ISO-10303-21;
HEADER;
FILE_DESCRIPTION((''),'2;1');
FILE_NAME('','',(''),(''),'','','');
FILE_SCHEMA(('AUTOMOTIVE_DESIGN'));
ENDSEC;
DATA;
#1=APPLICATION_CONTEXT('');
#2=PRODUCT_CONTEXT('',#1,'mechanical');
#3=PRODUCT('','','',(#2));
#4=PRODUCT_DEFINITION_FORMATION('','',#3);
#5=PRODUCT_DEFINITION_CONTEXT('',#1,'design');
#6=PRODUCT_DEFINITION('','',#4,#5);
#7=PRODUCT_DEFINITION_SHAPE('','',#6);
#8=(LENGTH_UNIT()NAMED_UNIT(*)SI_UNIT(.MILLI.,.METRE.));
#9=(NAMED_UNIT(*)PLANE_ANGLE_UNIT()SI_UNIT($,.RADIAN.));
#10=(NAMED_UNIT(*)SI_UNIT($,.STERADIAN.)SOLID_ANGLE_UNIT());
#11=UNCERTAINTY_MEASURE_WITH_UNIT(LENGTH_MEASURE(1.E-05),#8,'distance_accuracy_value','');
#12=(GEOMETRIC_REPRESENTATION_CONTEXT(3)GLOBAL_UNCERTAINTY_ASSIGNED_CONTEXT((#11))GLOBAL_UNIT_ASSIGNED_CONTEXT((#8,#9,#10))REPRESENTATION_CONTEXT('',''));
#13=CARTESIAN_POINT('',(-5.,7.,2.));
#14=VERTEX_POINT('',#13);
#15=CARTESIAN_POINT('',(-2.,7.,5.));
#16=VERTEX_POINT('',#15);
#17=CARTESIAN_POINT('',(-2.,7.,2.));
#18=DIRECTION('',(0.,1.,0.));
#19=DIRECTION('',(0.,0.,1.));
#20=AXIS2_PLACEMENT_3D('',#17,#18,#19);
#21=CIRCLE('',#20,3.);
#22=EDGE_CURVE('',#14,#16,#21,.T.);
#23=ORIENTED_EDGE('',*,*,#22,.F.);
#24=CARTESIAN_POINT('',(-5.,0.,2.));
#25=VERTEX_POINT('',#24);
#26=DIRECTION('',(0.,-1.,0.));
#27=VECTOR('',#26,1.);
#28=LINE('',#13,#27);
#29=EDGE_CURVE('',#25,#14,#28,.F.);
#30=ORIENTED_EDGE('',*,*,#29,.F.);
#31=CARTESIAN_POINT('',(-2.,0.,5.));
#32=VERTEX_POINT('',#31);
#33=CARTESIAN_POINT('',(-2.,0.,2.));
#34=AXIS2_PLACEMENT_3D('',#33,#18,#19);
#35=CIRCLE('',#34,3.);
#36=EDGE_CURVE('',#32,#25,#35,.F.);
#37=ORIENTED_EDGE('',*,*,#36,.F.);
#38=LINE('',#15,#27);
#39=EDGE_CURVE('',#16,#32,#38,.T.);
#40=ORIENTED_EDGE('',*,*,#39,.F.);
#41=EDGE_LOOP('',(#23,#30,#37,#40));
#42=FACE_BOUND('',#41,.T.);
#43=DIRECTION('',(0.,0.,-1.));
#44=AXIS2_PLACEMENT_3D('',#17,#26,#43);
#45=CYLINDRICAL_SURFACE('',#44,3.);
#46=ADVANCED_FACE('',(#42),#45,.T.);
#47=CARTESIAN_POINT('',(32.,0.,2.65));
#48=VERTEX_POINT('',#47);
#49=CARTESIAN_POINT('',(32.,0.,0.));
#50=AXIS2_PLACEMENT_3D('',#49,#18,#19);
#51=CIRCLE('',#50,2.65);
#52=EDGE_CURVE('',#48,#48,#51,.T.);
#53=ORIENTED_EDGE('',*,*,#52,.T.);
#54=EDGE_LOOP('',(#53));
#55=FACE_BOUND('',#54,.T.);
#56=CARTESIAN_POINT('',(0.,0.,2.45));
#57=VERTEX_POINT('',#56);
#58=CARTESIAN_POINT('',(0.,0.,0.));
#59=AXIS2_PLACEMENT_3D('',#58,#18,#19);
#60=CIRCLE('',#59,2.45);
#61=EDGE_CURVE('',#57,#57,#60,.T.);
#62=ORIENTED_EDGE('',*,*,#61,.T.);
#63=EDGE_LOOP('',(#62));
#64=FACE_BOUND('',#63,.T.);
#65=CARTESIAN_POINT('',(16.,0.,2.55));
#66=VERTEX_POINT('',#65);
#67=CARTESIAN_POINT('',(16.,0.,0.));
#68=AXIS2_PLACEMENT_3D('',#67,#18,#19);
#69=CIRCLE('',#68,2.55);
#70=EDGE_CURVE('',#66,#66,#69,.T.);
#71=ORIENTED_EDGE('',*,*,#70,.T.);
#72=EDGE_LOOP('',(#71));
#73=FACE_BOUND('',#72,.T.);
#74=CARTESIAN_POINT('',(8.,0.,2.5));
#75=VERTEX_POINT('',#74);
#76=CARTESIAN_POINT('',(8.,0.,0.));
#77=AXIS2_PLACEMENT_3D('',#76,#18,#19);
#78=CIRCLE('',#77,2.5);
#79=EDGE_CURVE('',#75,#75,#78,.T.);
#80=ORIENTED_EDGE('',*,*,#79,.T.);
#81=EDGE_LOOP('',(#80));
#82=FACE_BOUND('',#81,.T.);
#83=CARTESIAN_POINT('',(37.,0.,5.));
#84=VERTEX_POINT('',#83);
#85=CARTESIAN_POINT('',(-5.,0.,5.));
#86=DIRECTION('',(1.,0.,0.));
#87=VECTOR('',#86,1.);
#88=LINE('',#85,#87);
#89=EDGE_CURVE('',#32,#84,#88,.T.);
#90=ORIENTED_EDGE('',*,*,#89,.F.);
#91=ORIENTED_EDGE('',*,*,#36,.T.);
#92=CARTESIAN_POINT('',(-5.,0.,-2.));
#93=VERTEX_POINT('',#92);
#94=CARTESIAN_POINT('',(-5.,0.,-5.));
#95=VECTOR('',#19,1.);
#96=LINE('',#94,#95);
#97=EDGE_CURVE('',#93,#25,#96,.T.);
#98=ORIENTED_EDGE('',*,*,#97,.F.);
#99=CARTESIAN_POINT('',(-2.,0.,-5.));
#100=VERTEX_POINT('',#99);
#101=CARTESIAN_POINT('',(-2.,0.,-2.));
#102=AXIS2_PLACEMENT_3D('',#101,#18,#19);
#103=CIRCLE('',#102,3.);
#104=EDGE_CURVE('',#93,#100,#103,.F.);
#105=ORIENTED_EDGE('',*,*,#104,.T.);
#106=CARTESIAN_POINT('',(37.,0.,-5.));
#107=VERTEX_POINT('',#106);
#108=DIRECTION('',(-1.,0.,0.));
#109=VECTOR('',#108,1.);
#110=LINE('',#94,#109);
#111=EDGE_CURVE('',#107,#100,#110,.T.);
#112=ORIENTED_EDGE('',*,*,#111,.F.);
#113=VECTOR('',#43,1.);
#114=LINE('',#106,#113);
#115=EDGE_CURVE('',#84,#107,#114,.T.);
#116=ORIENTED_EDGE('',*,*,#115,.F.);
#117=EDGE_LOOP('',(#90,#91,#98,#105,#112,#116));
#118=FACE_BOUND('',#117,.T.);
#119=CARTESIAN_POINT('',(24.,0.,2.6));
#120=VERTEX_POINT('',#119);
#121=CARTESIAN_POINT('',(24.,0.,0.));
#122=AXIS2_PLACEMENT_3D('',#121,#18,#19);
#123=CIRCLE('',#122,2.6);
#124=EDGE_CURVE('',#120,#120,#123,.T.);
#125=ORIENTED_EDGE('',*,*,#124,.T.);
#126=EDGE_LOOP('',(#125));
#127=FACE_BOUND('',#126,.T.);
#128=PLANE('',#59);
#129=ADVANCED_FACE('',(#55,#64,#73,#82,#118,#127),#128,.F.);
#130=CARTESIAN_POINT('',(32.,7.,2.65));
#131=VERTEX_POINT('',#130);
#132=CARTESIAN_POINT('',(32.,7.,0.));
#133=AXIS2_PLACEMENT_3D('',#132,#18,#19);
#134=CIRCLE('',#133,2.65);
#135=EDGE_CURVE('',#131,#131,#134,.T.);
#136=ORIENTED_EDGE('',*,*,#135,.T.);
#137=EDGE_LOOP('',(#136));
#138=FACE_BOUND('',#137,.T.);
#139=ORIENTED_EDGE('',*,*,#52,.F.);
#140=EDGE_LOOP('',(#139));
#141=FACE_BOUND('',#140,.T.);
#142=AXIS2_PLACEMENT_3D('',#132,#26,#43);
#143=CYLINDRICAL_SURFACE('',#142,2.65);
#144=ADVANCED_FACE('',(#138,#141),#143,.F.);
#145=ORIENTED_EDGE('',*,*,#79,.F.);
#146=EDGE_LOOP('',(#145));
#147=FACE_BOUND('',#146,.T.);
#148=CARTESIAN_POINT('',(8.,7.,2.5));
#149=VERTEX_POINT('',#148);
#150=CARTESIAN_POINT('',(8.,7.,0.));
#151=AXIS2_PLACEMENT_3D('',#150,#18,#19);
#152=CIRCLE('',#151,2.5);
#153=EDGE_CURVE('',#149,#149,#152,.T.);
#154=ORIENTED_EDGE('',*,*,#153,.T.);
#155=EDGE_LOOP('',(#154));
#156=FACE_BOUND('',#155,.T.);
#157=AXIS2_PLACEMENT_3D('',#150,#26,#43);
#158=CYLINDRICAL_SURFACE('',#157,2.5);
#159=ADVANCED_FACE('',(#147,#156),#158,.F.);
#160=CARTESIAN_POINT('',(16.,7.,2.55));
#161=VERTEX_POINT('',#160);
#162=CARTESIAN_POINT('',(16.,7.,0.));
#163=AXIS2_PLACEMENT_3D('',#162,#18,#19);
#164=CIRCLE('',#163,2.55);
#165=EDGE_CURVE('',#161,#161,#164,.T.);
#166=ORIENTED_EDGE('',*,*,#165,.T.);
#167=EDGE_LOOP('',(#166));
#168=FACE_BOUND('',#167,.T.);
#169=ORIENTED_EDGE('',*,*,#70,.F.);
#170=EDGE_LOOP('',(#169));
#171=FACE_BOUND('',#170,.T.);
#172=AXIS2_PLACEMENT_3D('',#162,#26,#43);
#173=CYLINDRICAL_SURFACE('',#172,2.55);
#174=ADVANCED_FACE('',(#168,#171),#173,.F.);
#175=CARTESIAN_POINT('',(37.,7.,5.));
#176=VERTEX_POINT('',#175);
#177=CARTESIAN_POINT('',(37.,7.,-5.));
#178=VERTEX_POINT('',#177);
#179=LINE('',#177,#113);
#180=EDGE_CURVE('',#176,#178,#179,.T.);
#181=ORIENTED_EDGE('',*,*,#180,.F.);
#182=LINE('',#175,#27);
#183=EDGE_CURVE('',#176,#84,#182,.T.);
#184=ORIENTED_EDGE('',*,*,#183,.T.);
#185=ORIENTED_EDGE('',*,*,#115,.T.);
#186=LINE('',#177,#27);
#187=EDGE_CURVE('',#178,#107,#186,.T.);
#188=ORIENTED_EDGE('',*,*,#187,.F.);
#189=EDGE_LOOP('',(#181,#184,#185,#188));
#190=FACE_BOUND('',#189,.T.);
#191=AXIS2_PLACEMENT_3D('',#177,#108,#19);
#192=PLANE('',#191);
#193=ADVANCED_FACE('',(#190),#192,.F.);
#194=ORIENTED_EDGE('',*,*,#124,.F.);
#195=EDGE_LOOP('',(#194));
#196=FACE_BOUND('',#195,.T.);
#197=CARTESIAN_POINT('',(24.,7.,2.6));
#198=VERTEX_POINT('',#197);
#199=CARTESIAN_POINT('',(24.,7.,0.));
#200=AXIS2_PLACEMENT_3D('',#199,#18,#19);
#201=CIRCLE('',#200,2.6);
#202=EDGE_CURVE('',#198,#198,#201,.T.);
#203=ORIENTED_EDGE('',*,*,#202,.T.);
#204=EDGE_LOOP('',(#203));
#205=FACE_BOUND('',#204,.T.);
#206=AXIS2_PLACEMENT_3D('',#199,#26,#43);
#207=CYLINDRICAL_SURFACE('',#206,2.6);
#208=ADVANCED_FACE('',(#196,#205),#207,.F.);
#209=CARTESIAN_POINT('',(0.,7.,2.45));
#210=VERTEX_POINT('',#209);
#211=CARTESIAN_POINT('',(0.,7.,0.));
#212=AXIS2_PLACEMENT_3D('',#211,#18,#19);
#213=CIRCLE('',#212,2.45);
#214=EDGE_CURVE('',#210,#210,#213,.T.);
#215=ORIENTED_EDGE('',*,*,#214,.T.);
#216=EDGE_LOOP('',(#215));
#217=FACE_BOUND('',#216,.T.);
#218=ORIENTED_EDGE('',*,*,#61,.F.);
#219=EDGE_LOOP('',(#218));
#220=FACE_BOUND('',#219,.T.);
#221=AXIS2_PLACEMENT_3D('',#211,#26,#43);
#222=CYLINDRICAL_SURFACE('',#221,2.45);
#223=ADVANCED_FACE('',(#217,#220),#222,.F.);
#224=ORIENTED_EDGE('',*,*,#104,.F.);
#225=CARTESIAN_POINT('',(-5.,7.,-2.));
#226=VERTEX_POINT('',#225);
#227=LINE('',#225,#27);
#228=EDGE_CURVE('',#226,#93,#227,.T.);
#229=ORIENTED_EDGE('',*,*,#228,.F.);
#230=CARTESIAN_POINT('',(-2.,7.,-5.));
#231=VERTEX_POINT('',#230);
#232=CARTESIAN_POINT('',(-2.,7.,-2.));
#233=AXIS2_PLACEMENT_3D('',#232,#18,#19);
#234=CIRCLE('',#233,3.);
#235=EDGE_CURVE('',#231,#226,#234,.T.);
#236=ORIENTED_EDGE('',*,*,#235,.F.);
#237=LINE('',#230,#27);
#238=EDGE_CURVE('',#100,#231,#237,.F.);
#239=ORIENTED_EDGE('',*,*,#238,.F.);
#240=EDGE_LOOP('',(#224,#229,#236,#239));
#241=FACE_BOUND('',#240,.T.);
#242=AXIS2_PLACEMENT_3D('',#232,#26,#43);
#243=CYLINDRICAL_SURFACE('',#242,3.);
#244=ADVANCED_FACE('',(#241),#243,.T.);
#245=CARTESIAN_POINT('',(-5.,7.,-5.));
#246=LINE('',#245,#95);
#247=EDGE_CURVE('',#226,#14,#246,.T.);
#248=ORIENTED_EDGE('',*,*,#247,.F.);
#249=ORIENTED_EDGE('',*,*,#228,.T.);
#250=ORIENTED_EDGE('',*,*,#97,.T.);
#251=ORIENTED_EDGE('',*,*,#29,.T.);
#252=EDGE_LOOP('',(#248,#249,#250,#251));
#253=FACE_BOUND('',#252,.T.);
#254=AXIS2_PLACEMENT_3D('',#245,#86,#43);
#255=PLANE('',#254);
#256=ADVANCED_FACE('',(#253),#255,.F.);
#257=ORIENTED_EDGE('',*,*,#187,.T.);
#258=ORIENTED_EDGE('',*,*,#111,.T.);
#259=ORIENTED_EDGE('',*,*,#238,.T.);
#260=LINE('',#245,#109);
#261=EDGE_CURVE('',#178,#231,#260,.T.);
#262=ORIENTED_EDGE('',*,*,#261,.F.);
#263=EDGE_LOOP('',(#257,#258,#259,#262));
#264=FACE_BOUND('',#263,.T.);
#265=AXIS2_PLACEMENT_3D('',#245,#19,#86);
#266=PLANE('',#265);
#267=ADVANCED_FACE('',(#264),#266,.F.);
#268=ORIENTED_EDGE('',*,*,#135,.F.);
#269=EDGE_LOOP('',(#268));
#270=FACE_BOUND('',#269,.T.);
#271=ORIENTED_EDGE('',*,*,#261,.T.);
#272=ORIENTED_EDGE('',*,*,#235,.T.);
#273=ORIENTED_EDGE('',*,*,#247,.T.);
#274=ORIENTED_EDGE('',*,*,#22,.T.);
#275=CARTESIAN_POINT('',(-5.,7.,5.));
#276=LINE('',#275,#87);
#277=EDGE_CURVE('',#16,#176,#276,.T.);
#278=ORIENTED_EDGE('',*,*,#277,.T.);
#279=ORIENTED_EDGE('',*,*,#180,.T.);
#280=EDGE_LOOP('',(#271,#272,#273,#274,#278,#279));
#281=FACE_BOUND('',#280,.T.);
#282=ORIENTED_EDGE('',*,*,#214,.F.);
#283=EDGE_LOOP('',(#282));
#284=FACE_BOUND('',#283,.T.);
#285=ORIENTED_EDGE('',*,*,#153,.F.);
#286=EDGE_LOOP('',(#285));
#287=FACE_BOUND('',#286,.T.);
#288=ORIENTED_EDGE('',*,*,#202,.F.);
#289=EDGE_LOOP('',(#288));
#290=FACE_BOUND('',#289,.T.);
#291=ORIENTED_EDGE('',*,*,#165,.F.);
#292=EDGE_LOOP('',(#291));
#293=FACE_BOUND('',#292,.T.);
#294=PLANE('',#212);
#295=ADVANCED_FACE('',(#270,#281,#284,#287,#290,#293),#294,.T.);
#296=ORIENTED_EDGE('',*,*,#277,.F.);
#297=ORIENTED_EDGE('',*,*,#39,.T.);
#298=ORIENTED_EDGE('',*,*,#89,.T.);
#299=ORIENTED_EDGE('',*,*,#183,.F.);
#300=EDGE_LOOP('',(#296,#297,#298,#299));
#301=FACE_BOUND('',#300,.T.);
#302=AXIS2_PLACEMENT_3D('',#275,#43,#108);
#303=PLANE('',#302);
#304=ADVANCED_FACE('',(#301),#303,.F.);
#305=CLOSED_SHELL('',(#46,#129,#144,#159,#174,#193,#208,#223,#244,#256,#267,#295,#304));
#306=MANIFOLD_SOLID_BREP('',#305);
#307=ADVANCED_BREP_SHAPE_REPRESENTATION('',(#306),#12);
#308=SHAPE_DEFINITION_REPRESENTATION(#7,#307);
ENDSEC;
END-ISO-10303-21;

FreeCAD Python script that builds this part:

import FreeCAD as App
import Part
import Sketcher


def edges_at(feature, points):
    """Names of the edges that pass closest to the given points."""
    edges = feature.Shape.Edges
    near = lambda p: min(range(len(edges)), key=lambda i: edges[i].distToShape(Part.Vertex(*p))[0])
    return sorted({f"Edge{near(p) + 1}" for p in points})


def add_polygon(sketch, points):
    """Adds a closed chain of lines whose ends are joined by coincident constraints."""
    first, n = sketch.GeometryCount, len(points)
    for a, b in zip(points, points[1:] + points[:1]):
        sketch.addGeometry(Part.LineSegment(App.Vector(*a, 0), App.Vector(*b, 0)), False)
    for i in range(n):
        sketch.addConstraint(Sketcher.Constraint("Coincident", first + i, 2, first + (i + 1) % n, 1))

doc = App.newDocument("Part")
params = doc.addObject("Spreadsheet::Sheet", "Params")
for row, (alias, value) in enumerate([
    ("sketch1_diameter", "5 mm"),
    ("sketch1_diameter2", "4.9 mm"),
    ("sketch1_diameter3", "5.1 mm"),
    ("sketch1_diameter4", "5.2 mm"),
    ("sketch1_diameter5", "5.3 mm"),
    ("pad1_length", "7 mm"),
    ("fillet_radius", "3 mm"),
], start=1):
    params.set(f"A{row}", alias)
    params.set(f"B{row}", "=" + value)
    params.setAlias(f"B{row}", alias)

body = doc.addObject("PartDesign::Body", "Body")

# Sketch on XZ plane
sketch1 = body.newObject("Sketcher::SketchObject", "Sketch")
sketch1.AttachmentSupport = (doc.getObject("XZ_Plane"), [""])
sketch1.MapMode = "FlatFace"
add_polygon(sketch1, [(-5, -5), (-5, 5), (37, 5), (37, -5)])  # lines 0-3
sketch1.addGeometry(Part.Circle(App.Vector(0, 0, 0), App.Vector(0, 0, 1), 2.5), False)  # 4
sketch1.addGeometry(Part.Circle(App.Vector(8, 0, 0), App.Vector(0, 0, 1), 2.5), False)  # 5
sketch1.addGeometry(Part.Circle(App.Vector(16, 0, 0), App.Vector(0, 0, 1), 2.5), False)  # 6
sketch1.addGeometry(Part.Circle(App.Vector(24, 0, 0), App.Vector(0, 0, 1), 2.6), False)  # 7
sketch1.addGeometry(Part.Circle(App.Vector(32, 0, 0), App.Vector(0, 0, 1), 2.6), False)  # 8
sketch1.addConstraint([
    Sketcher.Constraint("Vertical", 0),
    Sketcher.Constraint("Horizontal", 1),
    Sketcher.Constraint("Vertical", 2),
    Sketcher.Constraint("Horizontal", 3),
    Sketcher.Constraint("Coincident", 4, 3, -1, 1),
    Sketcher.Constraint("PointOnObject", 5, 3, -1),
    Sketcher.Constraint("PointOnObject", 6, 3, -1),
    Sketcher.Constraint("PointOnObject", 7, 3, -1),
    Sketcher.Constraint("PointOnObject", 8, 3, -1),
    Sketcher.Constraint("Diameter", 5, 5.0),
    Sketcher.Constraint("Diameter", 4, 4.9),
    Sketcher.Constraint("Diameter", 6, 5.1),
    Sketcher.Constraint("Diameter", 7, 5.2),
    Sketcher.Constraint("Diameter", 8, 5.3),
    Sketcher.Constraint("DistanceX", 1, 1, 1, 2, 42.0),
    Sketcher.Constraint("DistanceY", 0, 1, 0, 2, 10.0),
    Sketcher.Constraint("DistanceX", -1, 1, 5, 3, 8.0),
    Sketcher.Constraint("DistanceX", -1, 1, 6, 3, 16.0),
    Sketcher.Constraint("DistanceX", -1, 1, 7, 3, 24.0),
    Sketcher.Constraint("DistanceX", -1, 1, 8, 3, 32.0),
    Sketcher.Constraint("DistanceX", 0, 2, -1, 1, 5.0),
    Sketcher.Constraint("DistanceY", -1, 1, 0, 2, 5.0),
])
sketch1.setExpression("Constraints[13]", "Params.sketch1_diameter")
sketch1.setExpression("Constraints[14]", "Params.sketch1_diameter2")
sketch1.setExpression("Constraints[15]", "Params.sketch1_diameter3")
sketch1.setExpression("Constraints[16]", "Params.sketch1_diameter4")
sketch1.setExpression("Constraints[17]", "Params.sketch1_diameter5")
pad1 = body.newObject("PartDesign::Pad", "Pad")
pad1.Profile = sketch1
pad1.setExpression("Length", "Params.pad1_length")
pad1.Reversed = True
doc.recompute()

fillet = body.newObject("PartDesign::Fillet", "Fillet")
fillet.Base = (pad1, edges_at(pad1, [(-5, 3.5, 5), (-5, 3.5, -5)]))
fillet.setExpression("Radius", "Params.fillet_radius")

doc.recompute()
